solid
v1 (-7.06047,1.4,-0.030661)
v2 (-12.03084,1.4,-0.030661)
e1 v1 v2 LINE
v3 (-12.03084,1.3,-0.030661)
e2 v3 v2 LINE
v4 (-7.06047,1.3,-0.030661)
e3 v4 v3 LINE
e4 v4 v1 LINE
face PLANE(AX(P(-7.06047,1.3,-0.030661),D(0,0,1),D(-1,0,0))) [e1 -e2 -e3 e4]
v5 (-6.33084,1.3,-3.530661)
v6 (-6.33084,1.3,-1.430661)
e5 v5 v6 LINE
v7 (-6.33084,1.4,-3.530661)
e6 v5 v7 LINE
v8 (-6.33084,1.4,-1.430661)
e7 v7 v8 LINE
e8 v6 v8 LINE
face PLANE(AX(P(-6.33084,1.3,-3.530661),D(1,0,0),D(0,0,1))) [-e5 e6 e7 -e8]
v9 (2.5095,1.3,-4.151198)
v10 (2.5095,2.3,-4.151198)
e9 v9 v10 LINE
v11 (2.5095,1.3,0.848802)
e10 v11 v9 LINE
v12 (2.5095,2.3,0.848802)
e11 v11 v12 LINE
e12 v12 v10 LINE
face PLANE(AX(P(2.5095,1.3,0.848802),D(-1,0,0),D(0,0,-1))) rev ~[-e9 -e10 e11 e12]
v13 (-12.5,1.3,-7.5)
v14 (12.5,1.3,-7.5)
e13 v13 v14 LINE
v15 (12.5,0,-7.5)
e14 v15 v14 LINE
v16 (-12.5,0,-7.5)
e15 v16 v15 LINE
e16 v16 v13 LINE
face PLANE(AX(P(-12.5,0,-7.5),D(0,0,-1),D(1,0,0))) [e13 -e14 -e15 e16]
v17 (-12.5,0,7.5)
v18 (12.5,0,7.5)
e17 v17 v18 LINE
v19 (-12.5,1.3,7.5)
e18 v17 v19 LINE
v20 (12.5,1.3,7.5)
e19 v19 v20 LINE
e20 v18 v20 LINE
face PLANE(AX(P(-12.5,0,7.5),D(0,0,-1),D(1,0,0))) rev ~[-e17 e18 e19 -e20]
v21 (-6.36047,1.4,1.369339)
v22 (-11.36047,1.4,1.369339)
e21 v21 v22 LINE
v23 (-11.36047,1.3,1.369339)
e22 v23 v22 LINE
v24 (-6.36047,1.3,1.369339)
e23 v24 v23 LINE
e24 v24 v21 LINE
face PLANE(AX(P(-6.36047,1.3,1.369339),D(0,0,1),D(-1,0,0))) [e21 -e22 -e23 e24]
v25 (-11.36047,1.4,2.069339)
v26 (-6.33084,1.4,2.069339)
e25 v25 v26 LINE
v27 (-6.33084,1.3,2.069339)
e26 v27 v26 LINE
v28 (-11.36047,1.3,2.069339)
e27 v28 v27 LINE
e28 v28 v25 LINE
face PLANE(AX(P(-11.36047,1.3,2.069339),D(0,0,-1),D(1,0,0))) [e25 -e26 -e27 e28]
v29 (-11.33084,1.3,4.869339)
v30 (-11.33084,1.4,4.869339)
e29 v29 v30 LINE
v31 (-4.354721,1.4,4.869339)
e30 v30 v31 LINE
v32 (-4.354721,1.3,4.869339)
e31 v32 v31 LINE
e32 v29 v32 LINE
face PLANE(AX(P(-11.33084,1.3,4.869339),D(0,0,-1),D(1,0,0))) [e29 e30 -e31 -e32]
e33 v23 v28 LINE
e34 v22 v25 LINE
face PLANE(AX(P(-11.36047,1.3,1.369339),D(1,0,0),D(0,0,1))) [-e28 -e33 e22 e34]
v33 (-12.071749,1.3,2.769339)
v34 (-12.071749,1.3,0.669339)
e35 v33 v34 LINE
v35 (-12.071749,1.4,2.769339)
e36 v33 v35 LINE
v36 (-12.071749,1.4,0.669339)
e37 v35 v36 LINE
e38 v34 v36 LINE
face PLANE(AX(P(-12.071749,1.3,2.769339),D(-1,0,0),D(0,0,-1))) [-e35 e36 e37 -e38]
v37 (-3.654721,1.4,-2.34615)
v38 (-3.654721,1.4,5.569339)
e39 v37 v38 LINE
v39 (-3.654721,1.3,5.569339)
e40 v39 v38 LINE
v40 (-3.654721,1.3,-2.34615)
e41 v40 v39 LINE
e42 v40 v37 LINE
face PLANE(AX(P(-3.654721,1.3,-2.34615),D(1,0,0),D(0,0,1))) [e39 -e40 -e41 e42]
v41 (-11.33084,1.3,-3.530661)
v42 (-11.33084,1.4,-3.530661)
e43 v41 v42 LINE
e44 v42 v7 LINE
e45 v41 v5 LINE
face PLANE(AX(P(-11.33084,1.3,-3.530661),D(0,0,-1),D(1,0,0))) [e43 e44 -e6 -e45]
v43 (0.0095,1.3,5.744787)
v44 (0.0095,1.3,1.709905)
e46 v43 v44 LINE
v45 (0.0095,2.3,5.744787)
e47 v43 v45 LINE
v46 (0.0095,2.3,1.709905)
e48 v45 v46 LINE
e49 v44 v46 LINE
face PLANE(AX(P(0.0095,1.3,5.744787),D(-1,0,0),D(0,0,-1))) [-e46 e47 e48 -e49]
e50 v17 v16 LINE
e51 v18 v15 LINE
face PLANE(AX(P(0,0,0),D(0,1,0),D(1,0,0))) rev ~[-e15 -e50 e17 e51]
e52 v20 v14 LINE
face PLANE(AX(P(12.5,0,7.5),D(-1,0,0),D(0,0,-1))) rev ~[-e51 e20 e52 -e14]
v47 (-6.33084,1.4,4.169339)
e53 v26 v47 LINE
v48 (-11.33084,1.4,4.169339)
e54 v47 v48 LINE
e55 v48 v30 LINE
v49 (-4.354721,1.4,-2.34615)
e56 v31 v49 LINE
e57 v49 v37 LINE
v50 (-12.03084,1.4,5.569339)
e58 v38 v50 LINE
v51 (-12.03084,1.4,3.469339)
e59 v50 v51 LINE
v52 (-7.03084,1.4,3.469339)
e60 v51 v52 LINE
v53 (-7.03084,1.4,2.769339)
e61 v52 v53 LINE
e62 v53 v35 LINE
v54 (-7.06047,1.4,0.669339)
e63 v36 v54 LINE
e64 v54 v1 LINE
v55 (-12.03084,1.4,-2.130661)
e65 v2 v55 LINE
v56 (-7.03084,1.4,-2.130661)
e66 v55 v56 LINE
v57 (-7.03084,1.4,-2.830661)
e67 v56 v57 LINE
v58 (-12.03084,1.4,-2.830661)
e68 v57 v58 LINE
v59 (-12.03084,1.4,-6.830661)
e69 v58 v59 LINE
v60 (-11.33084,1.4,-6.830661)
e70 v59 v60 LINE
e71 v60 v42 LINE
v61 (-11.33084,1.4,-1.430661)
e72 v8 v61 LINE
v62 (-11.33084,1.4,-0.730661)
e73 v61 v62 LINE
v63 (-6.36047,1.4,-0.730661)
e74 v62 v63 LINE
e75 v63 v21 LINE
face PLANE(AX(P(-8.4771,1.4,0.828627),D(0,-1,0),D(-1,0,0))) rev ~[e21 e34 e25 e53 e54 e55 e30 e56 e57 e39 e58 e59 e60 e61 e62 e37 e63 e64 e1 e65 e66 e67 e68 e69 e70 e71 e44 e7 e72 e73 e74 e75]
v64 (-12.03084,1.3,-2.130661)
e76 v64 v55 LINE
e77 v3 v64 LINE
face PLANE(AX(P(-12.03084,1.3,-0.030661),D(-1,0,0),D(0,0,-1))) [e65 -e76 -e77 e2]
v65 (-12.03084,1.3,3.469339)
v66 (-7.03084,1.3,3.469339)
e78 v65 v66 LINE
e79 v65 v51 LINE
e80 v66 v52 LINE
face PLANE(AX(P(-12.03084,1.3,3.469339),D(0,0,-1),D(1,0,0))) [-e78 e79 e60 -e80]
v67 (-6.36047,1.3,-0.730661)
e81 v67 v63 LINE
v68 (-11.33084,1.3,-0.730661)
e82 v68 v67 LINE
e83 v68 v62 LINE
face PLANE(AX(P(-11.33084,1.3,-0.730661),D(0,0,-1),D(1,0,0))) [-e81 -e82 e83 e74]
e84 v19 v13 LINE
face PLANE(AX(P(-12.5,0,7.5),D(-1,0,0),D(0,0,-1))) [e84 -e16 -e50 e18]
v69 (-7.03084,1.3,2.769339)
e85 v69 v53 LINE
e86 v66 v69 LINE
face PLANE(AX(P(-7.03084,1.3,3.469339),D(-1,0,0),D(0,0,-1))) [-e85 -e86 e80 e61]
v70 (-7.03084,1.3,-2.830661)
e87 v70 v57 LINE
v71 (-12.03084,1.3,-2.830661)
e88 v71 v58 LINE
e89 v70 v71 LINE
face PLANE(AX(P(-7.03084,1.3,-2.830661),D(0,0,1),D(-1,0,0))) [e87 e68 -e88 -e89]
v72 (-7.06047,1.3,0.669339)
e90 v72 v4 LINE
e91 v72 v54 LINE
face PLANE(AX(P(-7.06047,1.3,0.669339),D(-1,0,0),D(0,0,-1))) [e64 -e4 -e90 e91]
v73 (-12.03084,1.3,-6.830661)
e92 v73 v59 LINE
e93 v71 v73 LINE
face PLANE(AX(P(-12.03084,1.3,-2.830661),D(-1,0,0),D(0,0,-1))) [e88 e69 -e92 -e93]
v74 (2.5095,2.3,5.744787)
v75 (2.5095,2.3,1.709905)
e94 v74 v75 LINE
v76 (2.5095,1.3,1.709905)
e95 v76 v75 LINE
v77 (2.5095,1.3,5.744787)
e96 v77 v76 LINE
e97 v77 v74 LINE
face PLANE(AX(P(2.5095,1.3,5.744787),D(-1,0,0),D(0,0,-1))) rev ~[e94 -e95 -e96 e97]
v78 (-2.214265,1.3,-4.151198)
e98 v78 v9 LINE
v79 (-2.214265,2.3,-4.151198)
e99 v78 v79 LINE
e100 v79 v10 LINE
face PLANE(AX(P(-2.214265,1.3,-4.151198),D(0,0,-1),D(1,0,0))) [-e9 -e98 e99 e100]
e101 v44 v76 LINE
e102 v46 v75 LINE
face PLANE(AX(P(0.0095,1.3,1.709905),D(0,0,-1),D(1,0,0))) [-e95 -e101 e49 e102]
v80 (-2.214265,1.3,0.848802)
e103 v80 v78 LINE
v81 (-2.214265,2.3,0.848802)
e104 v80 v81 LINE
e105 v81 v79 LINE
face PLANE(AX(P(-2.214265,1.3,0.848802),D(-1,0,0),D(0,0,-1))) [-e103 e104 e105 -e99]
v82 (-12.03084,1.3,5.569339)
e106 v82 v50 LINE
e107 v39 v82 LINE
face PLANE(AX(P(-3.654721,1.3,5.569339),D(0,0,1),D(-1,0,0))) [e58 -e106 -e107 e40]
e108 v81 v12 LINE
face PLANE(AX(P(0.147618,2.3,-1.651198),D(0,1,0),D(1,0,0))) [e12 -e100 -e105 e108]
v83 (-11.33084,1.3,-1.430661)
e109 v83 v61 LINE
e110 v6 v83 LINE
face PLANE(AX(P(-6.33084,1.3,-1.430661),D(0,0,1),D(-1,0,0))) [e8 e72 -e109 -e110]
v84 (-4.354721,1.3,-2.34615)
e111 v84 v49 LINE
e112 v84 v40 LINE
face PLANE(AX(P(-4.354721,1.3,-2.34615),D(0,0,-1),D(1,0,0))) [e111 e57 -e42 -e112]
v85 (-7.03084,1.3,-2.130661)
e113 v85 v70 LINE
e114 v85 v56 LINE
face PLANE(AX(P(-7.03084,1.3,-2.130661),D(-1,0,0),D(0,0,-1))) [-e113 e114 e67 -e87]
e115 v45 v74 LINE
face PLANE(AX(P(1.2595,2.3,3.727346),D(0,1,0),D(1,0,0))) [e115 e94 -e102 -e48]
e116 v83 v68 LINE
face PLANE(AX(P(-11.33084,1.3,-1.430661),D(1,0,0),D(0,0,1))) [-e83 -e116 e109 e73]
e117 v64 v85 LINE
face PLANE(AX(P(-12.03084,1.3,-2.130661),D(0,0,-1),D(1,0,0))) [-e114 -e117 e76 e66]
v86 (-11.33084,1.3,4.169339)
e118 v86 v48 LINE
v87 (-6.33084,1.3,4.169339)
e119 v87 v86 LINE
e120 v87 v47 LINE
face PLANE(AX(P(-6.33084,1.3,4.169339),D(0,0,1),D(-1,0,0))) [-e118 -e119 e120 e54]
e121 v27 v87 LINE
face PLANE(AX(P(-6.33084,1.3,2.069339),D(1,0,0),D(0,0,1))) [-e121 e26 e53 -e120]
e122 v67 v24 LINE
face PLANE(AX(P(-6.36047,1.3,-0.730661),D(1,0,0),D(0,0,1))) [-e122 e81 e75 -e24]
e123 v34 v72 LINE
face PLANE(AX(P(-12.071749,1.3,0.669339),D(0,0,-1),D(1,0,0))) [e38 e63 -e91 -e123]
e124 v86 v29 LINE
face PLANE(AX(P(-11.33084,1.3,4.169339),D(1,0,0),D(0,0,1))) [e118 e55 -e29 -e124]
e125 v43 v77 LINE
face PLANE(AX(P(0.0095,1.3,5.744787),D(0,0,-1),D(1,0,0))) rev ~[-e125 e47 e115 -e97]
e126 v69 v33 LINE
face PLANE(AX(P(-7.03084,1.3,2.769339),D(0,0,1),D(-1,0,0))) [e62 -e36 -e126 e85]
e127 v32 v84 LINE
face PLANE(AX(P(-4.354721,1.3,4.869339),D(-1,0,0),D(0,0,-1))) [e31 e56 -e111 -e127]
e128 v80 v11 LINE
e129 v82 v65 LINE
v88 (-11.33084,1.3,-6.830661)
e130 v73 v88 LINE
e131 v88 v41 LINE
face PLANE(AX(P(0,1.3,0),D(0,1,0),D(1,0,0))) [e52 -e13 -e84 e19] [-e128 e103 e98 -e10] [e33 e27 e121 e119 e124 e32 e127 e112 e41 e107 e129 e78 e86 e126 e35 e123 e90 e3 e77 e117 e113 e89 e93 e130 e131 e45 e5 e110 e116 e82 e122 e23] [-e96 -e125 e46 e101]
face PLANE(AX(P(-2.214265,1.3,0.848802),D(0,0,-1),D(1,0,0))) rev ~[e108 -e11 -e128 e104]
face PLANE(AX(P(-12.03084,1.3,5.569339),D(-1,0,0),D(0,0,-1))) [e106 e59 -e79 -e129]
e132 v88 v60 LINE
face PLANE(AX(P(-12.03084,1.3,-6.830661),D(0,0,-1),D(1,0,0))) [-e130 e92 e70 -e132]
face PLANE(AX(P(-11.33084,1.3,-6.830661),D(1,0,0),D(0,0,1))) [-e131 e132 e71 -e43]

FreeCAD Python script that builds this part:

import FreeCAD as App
import Part
import Sketcher


def add_polygon(sketch, points):
    """Adds a closed chain of lines whose ends are joined by coincident constraints."""
    first, n = sketch.GeometryCount, len(points)
    for a, b in zip(points, points[1:] + points[:1]):
        sketch.addGeometry(Part.LineSegment(App.Vector(*a, 0), App.Vector(*b, 0)), False)
    for i in range(n):
        sketch.addConstraint(Sketcher.Constraint("Coincident", first + i, 2, first + (i + 1) % n, 1))

doc = App.newDocument("Part")
body = doc.addObject("PartDesign::Body", "Body")

sketch1 = body.newObject("Sketcher::SketchObject", "Sketch")
sketch1.AttachmentSupport = (doc.getObject("XZ_Plane"), [""])
sketch1.MapMode = "FlatFace"
add_polygon(sketch1, [(-12.5, -7.5), (-12.5, 7.5), (12.5, 7.5), (12.5, -7.5)])
sketch1.addConstraint([
    Sketcher.Constraint("Vertical", 0),
    Sketcher.Constraint("Horizontal", 1),
    Sketcher.Constraint("Vertical", 2),
    Sketcher.Constraint("Horizontal", 3),
    Sketcher.Constraint("Symmetric", 0, 2, 2, 2, -1, 1),
    Sketcher.Constraint("DistanceX", 1, 1, 1, 2, 25.0),
    Sketcher.Constraint("DistanceY", 0, 1, 0, 2, 15.0),
])
pad1 = body.newObject("PartDesign::Pad", "Pad")
pad1.Profile = sketch1
pad1.Length = 1.3
pad1.Reversed = True

sketch2 = body.newObject("Sketcher::SketchObject", "Sketch001")
sketch2.AttachmentSupport = (doc.getObject("XZ_Plane"), [""])
sketch2.MapMode = "FlatFace"
sketch2.AttachmentOffset = App.Placement(App.Vector(0, 0, -1.3), App.Rotation())
add_polygon(sketch2, [(-12.03084, 5.569339), (-3.654721, 5.569339), (-3.654721, -2.34615), (-4.354721, -2.34615), (-4.354721, 4.869339), (-11.33084, 4.869339), (-11.33084, 4.169339), (-6.33084, 4.169339), (-6.33084, 2.069339), (-11.36047, 2.069339), (-11.36047, 1.369339), (-6.36047, 1.369339), (-6.36047, -0.730661), (-11.33084, -0.730661), (-11.33084, -1.430661), (-6.33084, -1.430661), (-6.33084, -3.530661), (-11.33084, -3.530661), (-11.33084, -6.830661), (-12.03084, -6.830661), (-12.03084, -2.830661), (-7.03084, -2.830661), (-7.03084, -2.130661), (-12.03084, -2.130661), (-12.03084, -0.030661), (-7.06047, -0.030661), (-7.06047, 0.669339), (-12.071749, 0.669339), (-12.071749, 2.769339), (-7.03084, 2.769339), (-7.03084, 3.469339), (-12.03084, 3.469339)])
sketch2.addConstraint([
    Sketcher.Constraint("Horizontal", 0),
    Sketcher.Constraint("Vertical", 1),
    Sketcher.Constraint("Horizontal", 2),
    Sketcher.Constraint("Vertical", 3),
    Sketcher.Constraint("Horizontal", 4),
    Sketcher.Constraint("Vertical", 5),
    Sketcher.Constraint("Horizontal", 6),
    Sketcher.Constraint("Vertical", 7),
    Sketcher.Constraint("Horizontal", 8),
    Sketcher.Constraint("Vertical", 9),
    Sketcher.Constraint("Horizontal", 10),
    Sketcher.Constraint("Vertical", 11),
    Sketcher.Constraint("Horizontal", 12),
    Sketcher.Constraint("Vertical", 13),
    Sketcher.Constraint("Horizontal", 14),
    Sketcher.Constraint("Vertical", 15),
    Sketcher.Constraint("Horizontal", 16),
    Sketcher.Constraint("Vertical", 17),
    Sketcher.Constraint("Horizontal", 18),
    Sketcher.Constraint("Vertical", 19),
    Sketcher.Constraint("Horizontal", 20),
    Sketcher.Constraint("Vertical", 21),
    Sketcher.Constraint("Horizontal", 22),
    Sketcher.Constraint("Vertical", 23),
    Sketcher.Constraint("Horizontal", 24),
    Sketcher.Constraint("Vertical", 25),
    Sketcher.Constraint("Horizontal", 26),
    Sketcher.Constraint("Vertical", 27),
    Sketcher.Constraint("Horizontal", 28),
    Sketcher.Constraint("Vertical", 29),
    Sketcher.Constraint("Horizontal", 30),
    Sketcher.Constraint("Vertical", 31),
    Sketcher.Constraint("Vertical", 5, 2, 12, 2),
    Sketcher.Constraint("Vertical", 7, 2, 14, 2),
    Sketcher.Constraint("Vertical", 13, 2, 16, 2),
    Sketcher.Constraint("Vertical", 19, 2, 22, 2),
    Sketcher.Constraint("Vertical", 21, 2, 28, 2),
    Sketcher.Constraint("Vertical", 23, 2, 30, 2),
    Sketcher.Constraint("Equal", 6, 10),
    Sketcher.Constraint("Equal", 2, 18),
    Sketcher.Constraint("Equal", 16, 20),
    Sketcher.Constraint("Equal", 12, 24),
    Sketcher.Constraint("Equal", 18, 5),
    Sketcher.Constraint("Equal", 5, 9),
    Sketcher.Constraint("Equal", 7, 11),
    Sketcher.Constraint("Equal", 9, 13),
    Sketcher.Constraint("Equal", 11, 15),
    Sketcher.Constraint("Equal", 13, 21),
    Sketcher.Constraint("Equal", 15, 23),
    Sketcher.Constraint("Equal", 21, 25),
    Sketcher.Constraint("Equal", 23, 27),
    Sketcher.Constraint("Equal", 25, 29),
    Sketcher.Constraint("Equal", 27, 31),
    Sketcher.Constraint("DistanceX", 6, 1, 6, 2, 5.0),
    Sketcher.Constraint("DistanceY", 19, 1, 19, 2, 4.0),
    Sketcher.Constraint("DistanceX", 2, 2, 2, 1, 0.7),
    Sketcher.Constraint("DistanceY", 7, 2, 7, 1, 2.1),
    Sketcher.Constraint("DistanceY", 17, 2, 17, 1, 3.3),
    Sketcher.Constraint("DistanceX", 0, 1, 0, 2, 8.376119),
    Sketcher.Constraint("DistanceX", 8, 2, 8, 1, 5.02963),
    Sketcher.Constraint("DistanceX", 26, 2, 26, 1, 5.011279),
    Sketcher.Constraint("DistanceY", 1, 2, 1, 1, 7.915489),
    Sketcher.Constraint("DistanceX", 0, 2, -1, 1, 3.654721),
    Sketcher.Constraint("DistanceY", -1, 1, 0, 2, 5.569339),
])
pad2 = body.newObject("PartDesign::Pad", "Pad001")
pad2.Profile = sketch2
pad2.Length = 0.1
pad2.Reversed = True

sketch3 = body.newObject("Sketcher::SketchObject", "Sketch002")
sketch3.AttachmentSupport = (doc.getObject("XZ_Plane"), [""])
sketch3.MapMode = "FlatFace"
sketch3.AttachmentOffset = App.Placement(App.Vector(0, 0, -1.3), App.Rotation())
add_polygon(sketch3, [(-2.214265, -4.151198), (-2.214265, 0.848802), (2.5095, 0.848802), (2.5095, -4.151198)])
add_polygon(sketch3, [(0.0095, 1.709905), (0.0095, 5.744787), (2.5095, 5.744787), (2.5095, 1.709905)])
sketch3.addConstraint([
    Sketcher.Constraint("Vertical", 0),
    Sketcher.Constraint("Horizontal", 1),
    Sketcher.Constraint("Vertical", 2),
    Sketcher.Constraint("Horizontal", 3),
    Sketcher.Constraint("Vertical", 4),
    Sketcher.Constraint("Horizontal", 5),
    Sketcher.Constraint("Vertical", 6),
    Sketcher.Constraint("Horizontal", 7),
    Sketcher.Constraint("Vertical", 2, 2, 5, 2),
    Sketcher.Constraint("DistanceY", 0, 1, 0, 2, 5.0),
    Sketcher.Constraint("DistanceX", 5, 1, 5, 2, 2.5),
    Sketcher.Constraint("DistanceY", -1, 1, 0, 2, 0.848802),
    Sketcher.Constraint("DistanceX", -1, 1, 1, 2, 2.5095),
    Sketcher.Constraint("DistanceX", 1, 1, 1, 2, 4.723765),
    Sketcher.Constraint("DistanceY", 4, 1, 4, 2, 4.034883),
    Sketcher.Constraint("DistanceY", -1, 1, 4, 2, 5.744787),
])
pad3 = body.newObject("PartDesign::Pad", "Pad002")
pad3.Profile = sketch3
pad3.Length = 1
pad3.Reversed = True

doc.recompute()
